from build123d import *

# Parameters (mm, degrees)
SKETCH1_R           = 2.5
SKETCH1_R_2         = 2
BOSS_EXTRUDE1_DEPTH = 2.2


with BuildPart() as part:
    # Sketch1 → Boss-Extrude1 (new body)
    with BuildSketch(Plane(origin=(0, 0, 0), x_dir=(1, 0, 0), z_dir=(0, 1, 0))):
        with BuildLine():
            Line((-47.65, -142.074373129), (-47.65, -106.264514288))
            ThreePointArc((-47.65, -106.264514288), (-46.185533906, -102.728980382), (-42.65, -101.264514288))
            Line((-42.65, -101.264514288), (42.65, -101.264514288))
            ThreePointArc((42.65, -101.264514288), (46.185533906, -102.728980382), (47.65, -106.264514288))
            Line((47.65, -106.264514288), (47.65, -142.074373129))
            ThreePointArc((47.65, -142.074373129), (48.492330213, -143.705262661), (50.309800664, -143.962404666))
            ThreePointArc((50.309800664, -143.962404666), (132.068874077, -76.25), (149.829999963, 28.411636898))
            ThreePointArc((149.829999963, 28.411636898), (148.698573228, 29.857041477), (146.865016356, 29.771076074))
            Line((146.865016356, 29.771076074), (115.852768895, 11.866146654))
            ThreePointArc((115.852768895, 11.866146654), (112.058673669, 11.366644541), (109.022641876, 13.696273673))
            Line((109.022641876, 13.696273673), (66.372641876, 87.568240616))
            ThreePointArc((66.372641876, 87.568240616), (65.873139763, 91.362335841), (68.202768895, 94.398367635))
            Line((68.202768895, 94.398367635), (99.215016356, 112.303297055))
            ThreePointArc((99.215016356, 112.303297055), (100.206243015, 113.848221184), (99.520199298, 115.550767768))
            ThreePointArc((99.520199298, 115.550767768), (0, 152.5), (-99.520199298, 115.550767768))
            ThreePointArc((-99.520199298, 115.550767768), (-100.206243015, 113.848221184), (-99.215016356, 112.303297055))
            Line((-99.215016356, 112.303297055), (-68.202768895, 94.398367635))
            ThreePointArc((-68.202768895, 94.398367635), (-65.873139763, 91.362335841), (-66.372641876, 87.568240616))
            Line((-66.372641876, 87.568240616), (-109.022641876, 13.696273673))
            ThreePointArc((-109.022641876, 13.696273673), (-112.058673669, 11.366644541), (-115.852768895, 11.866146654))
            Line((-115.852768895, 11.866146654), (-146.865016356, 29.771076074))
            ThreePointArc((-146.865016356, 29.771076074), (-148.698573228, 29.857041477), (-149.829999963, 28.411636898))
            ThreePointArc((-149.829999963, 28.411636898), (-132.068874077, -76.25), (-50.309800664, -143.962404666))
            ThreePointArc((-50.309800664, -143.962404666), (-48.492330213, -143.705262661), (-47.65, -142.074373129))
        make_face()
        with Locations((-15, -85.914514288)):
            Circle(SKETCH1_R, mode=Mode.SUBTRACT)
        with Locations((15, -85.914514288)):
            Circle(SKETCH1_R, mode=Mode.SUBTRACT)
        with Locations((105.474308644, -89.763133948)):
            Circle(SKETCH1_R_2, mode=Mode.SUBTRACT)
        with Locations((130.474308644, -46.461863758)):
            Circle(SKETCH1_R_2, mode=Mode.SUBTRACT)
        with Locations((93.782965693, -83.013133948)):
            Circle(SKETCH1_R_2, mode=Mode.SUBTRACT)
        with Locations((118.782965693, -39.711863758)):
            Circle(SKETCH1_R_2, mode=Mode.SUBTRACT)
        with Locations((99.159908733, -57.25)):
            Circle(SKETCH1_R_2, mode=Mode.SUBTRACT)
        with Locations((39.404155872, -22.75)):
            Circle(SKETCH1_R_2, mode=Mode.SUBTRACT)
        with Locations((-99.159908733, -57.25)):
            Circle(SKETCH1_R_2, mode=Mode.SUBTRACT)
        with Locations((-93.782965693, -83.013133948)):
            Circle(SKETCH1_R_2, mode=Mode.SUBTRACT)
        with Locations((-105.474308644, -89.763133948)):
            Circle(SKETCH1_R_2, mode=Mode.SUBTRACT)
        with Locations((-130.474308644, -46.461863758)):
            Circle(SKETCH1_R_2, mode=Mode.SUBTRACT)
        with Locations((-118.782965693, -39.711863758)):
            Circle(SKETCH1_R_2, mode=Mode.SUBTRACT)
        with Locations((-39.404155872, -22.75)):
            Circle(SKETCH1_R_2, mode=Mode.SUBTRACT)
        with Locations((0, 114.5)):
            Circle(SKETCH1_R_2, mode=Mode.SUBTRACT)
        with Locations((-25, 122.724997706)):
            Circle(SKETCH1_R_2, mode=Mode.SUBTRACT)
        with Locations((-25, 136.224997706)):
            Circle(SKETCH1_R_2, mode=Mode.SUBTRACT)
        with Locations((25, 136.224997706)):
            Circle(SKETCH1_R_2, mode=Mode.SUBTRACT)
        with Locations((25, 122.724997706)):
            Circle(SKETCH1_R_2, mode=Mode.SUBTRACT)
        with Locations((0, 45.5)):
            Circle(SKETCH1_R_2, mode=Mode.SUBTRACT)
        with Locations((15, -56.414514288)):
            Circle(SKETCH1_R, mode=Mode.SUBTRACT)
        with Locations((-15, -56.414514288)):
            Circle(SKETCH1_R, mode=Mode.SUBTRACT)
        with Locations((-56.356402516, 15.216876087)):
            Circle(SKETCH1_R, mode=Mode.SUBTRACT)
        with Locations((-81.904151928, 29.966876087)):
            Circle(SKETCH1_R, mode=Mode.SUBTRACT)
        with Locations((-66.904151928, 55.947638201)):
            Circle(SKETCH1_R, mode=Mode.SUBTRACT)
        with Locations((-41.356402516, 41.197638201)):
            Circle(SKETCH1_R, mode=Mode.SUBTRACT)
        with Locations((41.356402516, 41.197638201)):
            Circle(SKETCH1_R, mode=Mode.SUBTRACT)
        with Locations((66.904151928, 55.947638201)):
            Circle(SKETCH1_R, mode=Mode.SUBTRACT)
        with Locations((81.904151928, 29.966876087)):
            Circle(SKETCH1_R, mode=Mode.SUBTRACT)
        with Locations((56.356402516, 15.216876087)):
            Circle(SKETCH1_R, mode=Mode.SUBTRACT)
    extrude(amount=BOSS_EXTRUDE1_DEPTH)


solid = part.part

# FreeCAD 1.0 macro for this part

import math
import FreeCAD as App
import Part
import Sketcher

V = App.Vector
Q = App.Units.Quantity

doc = App.newDocument("Part")
body = doc.addObject("PartDesign::Body", "Body")

# Sketch on XZ plane
sketch1 = doc.addObject("Sketcher::SketchObject", "Sketch")
body.addObject(sketch1)
sketch1.AttachmentSupport = (doc.XZ_Plane, [""])
sketch1.MapMode = "FlatFace"
sketch1.addGeometry([
    Part.LineSegment(V(-47.6, 142.1, 0), V(-47.6, 106.3, 0)),  # 0
    Part.ArcOfCircle(Part.Circle(V(-42.6, 106.3, 0), V(0, 0, 1), 5), math.radians(180), math.radians(270)),  # 1
    Part.LineSegment(V(-42.6, 101.3, 0), V(42.6, 101.3, 0)),  # 2
    Part.ArcOfCircle(Part.Circle(V(42.6, 106.3, 0), V(0, 0, 1), 5), math.radians(-90), math.radians(0)),  # 3
    Part.LineSegment(V(47.6, 106.3, 0), V(47.6, 142.1, 0)),  # 4
    Part.ArcOfCircle(Part.Circle(V(49.6, 142.1, 0), V(0, 0, 1), 2), math.radians(71), math.radians(180)),  # 5
    Part.ArcOfCircle(Part.Circle(V(0, 0, 0), V(0, 0, 1), 152.5), math.radians(-11), math.radians(71)),  # 6
    Part.ArcOfCircle(Part.Circle(V(147.9, -28, 0), V(0, 0, 1), 2), math.radians(-120), math.radians(-11)),  # 7
    Part.LineSegment(V(146.9, -29.8, 0), V(115.9, -11.9, 0)),  # 8
    Part.ArcOfCircle(Part.Circle(V(113.4, -16.2, 0), V(0, 0, 1), 5), math.radians(60), math.radians(150)),  # 9
    Part.LineSegment(V(109, -13.7, 0), V(66.4, -87.6, 0)),  # 10
    Part.ArcOfCircle(Part.Circle(V(70.7, -90.1, 0), V(0, 0, 1), 5), math.radians(150), math.radians(240)),  # 11
    Part.LineSegment(V(68.2, -94.4, 0), V(99.2, -112.3, 0)),  # 12
    Part.ArcOfCircle(Part.Circle(V(98.2, -114, 0), V(0, 0, 1), 2), math.radians(-49), math.radians(60)),  # 13
    Part.ArcOfCircle(Part.Circle(V(0, 0, 0), V(0, 0, 1), 152.5), math.radians(-131), math.radians(-49)),  # 14
    Part.ArcOfCircle(Part.Circle(V(-98.2, -114, 0), V(0, 0, 1), 2), math.radians(120), math.radians(229)),  # 15
    Part.LineSegment(V(-99.2, -112.3, 0), V(-68.2, -94.4, 0)),  # 16
    Part.ArcOfCircle(Part.Circle(V(-70.7, -90.1, 0), V(0, 0, 1), 5), math.radians(-60), math.radians(30)),  # 17
    Part.LineSegment(V(-66.4, -87.6, 0), V(-109, -13.7, 0)),  # 18
    Part.ArcOfCircle(Part.Circle(V(-113.4, -16.2, 0), V(0, 0, 1), 5), math.radians(30), math.radians(120)),  # 19
    Part.LineSegment(V(-115.9, -11.9, 0), V(-146.9, -29.8, 0)),  # 20
    Part.ArcOfCircle(Part.Circle(V(-147.9, -28, 0), V(0, 0, 1), 2), math.radians(-169), math.radians(-60)),  # 21
    Part.ArcOfCircle(Part.Circle(V(0, 0, 0), V(0, 0, 1), 152.5), math.radians(109), math.radians(191)),  # 22
    Part.ArcOfCircle(Part.Circle(V(-49.6, 142.1, 0), V(0, 0, 1), 2), math.radians(0), math.radians(109)),  # 23
    Part.Circle(V(-105.5, 89.8, 0), V(0, 0, 1), 2),  # 24
    Part.Circle(V(-93.8, 83, 0), V(0, 0, 1), 2),  # 25
    Part.Circle(V(-130.5, 46.5, 0), V(0, 0, 1), 2),  # 26
    Part.Circle(V(-118.8, 39.7, 0), V(0, 0, 1), 2),  # 27
    Part.Circle(V(-99.2, 57.2, 0), V(0, 0, 1), 2),  # 28
    Part.Circle(V(-15, 85.9, 0), V(0, 0, 1), 2.5),  # 29
    Part.Circle(V(-15, 56.4, 0), V(0, 0, 1), 2.5),  # 30
    Part.Circle(V(-39.4, 22.8, 0), V(0, 0, 1), 2),  # 31
    Part.Circle(V(-56.4, -15.2, 0), V(0, 0, 1), 2.5),  # 32
    Part.Circle(V(15, 85.9, 0), V(0, 0, 1), 2.5),  # 33
    Part.Circle(V(15, 56.4, 0), V(0, 0, 1), 2.5),  # 34
    Part.Circle(V(93.8, 83, 0), V(0, 0, 1), 2),  # 35
    Part.Circle(V(105.5, 89.8, 0), V(0, 0, 1), 2),  # 36
    Part.Circle(V(99.2, 57.2, 0), V(0, 0, 1), 2),  # 37
    Part.Circle(V(130.5, 46.5, 0), V(0, 0, 1), 2),  # 38
    Part.Circle(V(118.8, 39.7, 0), V(0, 0, 1), 2),  # 39
    Part.Circle(V(39.4, 22.8, 0), V(0, 0, 1), 2),  # 40
    Part.Circle(V(56.4, -15.2, 0), V(0, 0, 1), 2.5),  # 41
    Part.Circle(V(-81.9, -30, 0), V(0, 0, 1), 2.5),  # 42
    Part.Circle(V(-66.9, -55.9, 0), V(0, 0, 1), 2.5),  # 43
    Part.Circle(V(-41.4, -41.2, 0), V(0, 0, 1), 2.5),  # 44
    Part.Circle(V(-25, -122.7, 0), V(0, 0, 1), 2),  # 45
    Part.Circle(V(-25, -136.2, 0), V(0, 0, 1), 2),  # 46
    Part.Circle(V(0, -45.5, 0), V(0, 0, 1), 2),  # 47
    Part.Circle(V(41.4, -41.2, 0), V(0, 0, 1), 2.5),  # 48
    Part.Circle(V(81.9, -30, 0), V(0, 0, 1), 2.5),  # 49
    Part.Circle(V(66.9, -55.9, 0), V(0, 0, 1), 2.5),  # 50
    Part.Circle(V(0, -114.5, 0), V(0, 0, 1), 2),  # 51
    Part.Circle(V(25, -122.7, 0), V(0, 0, 1), 2),  # 52
    Part.Circle(V(25, -136.2, 0), V(0, 0, 1), 2),  # 53
], False)
sketch1.addConstraint([
    Sketcher.Constraint("Tangent", 0, 2, 1, 1),
    Sketcher.Constraint("Tangent", 1, 2, 2, 1),
    Sketcher.Constraint("Tangent", 2, 2, 3, 1),
    Sketcher.Constraint("Tangent", 3, 2, 4, 1),
    Sketcher.Constraint("Tangent", 4, 2, 5, 2),
    Sketcher.Constraint("Tangent", 5, 1, 6, 2),
    Sketcher.Constraint("Tangent", 6, 1, 7, 2),
    Sketcher.Constraint("Tangent", 7, 1, 8, 1),
    Sketcher.Constraint("Tangent", 8, 2, 9, 1),
    Sketcher.Constraint("Tangent", 9, 2, 10, 1),
    Sketcher.Constraint("Tangent", 10, 2, 11, 1),
    Sketcher.Constraint("Tangent", 11, 2, 12, 1),
    Sketcher.Constraint("Tangent", 12, 2, 13, 2),
    Sketcher.Constraint("Tangent", 13, 1, 14, 2),
    Sketcher.Constraint("Tangent", 14, 1, 15, 2),
    Sketcher.Constraint("Tangent", 15, 1, 16, 1),
    Sketcher.Constraint("Tangent", 16, 2, 17, 1),
    Sketcher.Constraint("Tangent", 17, 2, 18, 1),
    Sketcher.Constraint("Tangent", 18, 2, 19, 1),
    Sketcher.Constraint("Tangent", 19, 2, 20, 1),
    Sketcher.Constraint("Tangent", 20, 2, 21, 2),
    Sketcher.Constraint("Tangent", 21, 1, 22, 2),
    Sketcher.Constraint("Tangent", 22, 1, 23, 2),
    Sketcher.Constraint("Tangent", 23, 1, 0, 1),
    Sketcher.Constraint("Vertical", 0),
    Sketcher.Constraint("Horizontal", 2),
    Sketcher.Constraint("Vertical", 4),
    Sketcher.Constraint("Coincident", 6, 3, -1, 1),
    Sketcher.Constraint("Coincident", 14, 3, -1, 1),
    Sketcher.Constraint("Coincident", 22, 3, -1, 1),
    Sketcher.Constraint("Equal", 1, 3),
    Sketcher.Constraint("Equal", 5, 7),
    Sketcher.Constraint("Equal", 3, 9),
    Sketcher.Constraint("Equal", 9, 11),
    Sketcher.Constraint("Equal", 7, 13),
    Sketcher.Constraint("Equal", 6, 14),
    Sketcher.Constraint("Equal", 13, 15),
    Sketcher.Constraint("Equal", 11, 17),
    Sketcher.Constraint("Equal", 17, 19),
    Sketcher.Constraint("Equal", 15, 21),
    Sketcher.Constraint("Equal", 14, 22),
    Sketcher.Constraint("Equal", 21, 23),
    Sketcher.Constraint("Equal", 23, 24),
    Sketcher.Constraint("Equal", 24, 25),
    Sketcher.Constraint("Equal", 25, 26),
    Sketcher.Constraint("Equal", 26, 27),
    Sketcher.Constraint("Equal", 27, 28),
    Sketcher.Constraint("Equal", 29, 30),
    Sketcher.Constraint("Equal", 28, 31),
    Sketcher.Constraint("Equal", 30, 32),
    Sketcher.Constraint("Equal", 32, 33),
    Sketcher.Constraint("Equal", 33, 34),
    Sketcher.Constraint("Equal", 31, 35),
    Sketcher.Constraint("Equal", 35, 36),
    Sketcher.Constraint("Equal", 36, 37),
    Sketcher.Constraint("Equal", 37, 38),
    Sketcher.Constraint("Equal", 38, 39),
    Sketcher.Constraint("Equal", 39, 40),
    Sketcher.Constraint("Equal", 34, 41),
    Sketcher.Constraint("Equal", 41, 42),
    Sketcher.Constraint("Equal", 42, 43),
    Sketcher.Constraint("Equal", 43, 44),
    Sketcher.Constraint("Equal", 40, 45),
    Sketcher.Constraint("Equal", 45, 46),
    Sketcher.Constraint("Equal", 46, 47),
    Sketcher.Constraint("Equal", 44, 48),
    Sketcher.Constraint("Equal", 48, 49),
    Sketcher.Constraint("Equal", 49, 50),
    Sketcher.Constraint("Equal", 47, 51),
    Sketcher.Constraint("Equal", 51, 52),
    Sketcher.Constraint("Equal", 52, 53),
    Sketcher.Constraint("Symmetric", 11, 3, 17, 3, -2),
    Sketcher.Constraint("Symmetric", 9, 3, 19, 3, -2),
    Sketcher.Constraint("Symmetric", 29, 3, 33, 3, -2),
    Sketcher.Constraint("Symmetric", 30, 3, 34, 3, -2),
    Sketcher.Constraint("Symmetric", 25, 3, 35, 3, -2),
    Sketcher.Constraint("Symmetric", 24, 3, 36, 3, -2),
    Sketcher.Constraint("Symmetric", 28, 3, 37, 3, -2),
    Sketcher.Constraint("Symmetric", 26, 3, 38, 3, -2),
    Sketcher.Constraint("Symmetric", 27, 3, 39, 3, -2),
    Sketcher.Constraint("Symmetric", 31, 3, 40, 3, -2),
    Sketcher.Constraint("Symmetric", 32, 3, 41, 3, -2),
    Sketcher.Constraint("Symmetric", 44, 3, 48, 3, -2),
    Sketcher.Constraint("Symmetric", 42, 3, 49, 3, -2),
    Sketcher.Constraint("Symmetric", 43, 3, 50, 3, -2),
    Sketcher.Constraint("Symmetric", 45, 3, 52, 3, -2),
    Sketcher.Constraint("Symmetric", 46, 3, 53, 3, -2),
    Sketcher.Constraint("PointOnObject", 47, 3, -2),
    Sketcher.Constraint("PointOnObject", 51, 3, -2),
    Sketcher.Constraint("Perpendicular", 8, 10),
    Sketcher.Constraint("Perpendicular", 10, 12),
    Sketcher.Constraint("Perpendicular", 16, 18),
    Sketcher.Constraint("Perpendicular", 18, 20),
    Sketcher.Constraint("Horizontal", 5, 3, 23, 3),
    Sketcher.Constraint("Vertical", 29, 3, 30, 3),
    Sketcher.Constraint("Vertical", 45, 3, 46, 3),
    Sketcher.Constraint("Equal", 8, 12),
    Sketcher.Constraint("Diameter", 24, 4.0),
    Sketcher.Constraint("Diameter", 29, 5.0),
    Sketcher.Constraint("Radius", 1, 5.0),
    Sketcher.Constraint("Radius", 6, 152.5),
    Sketcher.Constraint("Angle", 8, Q("150 deg")),
    Sketcher.Constraint("DistanceX", 2, 1, 2, 2, 85.3),
    Sketcher.Constraint("DistanceX", 29, 3, -1, 1, 15.0),
    Sketcher.Constraint("DistanceX", 45, 3, -1, 1, 25.0),
    Sketcher.Constraint("Distance", 10, 85.3),
    Sketcher.Constraint("DistanceY", 47, 3, -1, 1, 45.5),
    Sketcher.Constraint("DistanceY", 51, 3, -1, 1, 114.5),
    Sketcher.Constraint("DistanceY", -1, 1, 28, 3, 57.25),
    Sketcher.Constraint("DistanceY", -1, 1, 31, 3, 22.75),
    Sketcher.Constraint("DistanceY", 0, 2, 0, 1, 35.809859),
    Sketcher.Constraint("Distance", 8, 35.809859),
    Sketcher.Constraint("DistanceX", 24, 3, -1, 1, 105.474309),
    Sketcher.Constraint("DistanceX", 26, 3, -1, 1, 130.474309),
    Sketcher.Constraint("DistanceX", 28, 3, -1, 1, 99.159909),
    Sketcher.Constraint("DistanceX", 42, 3, -1, 1, 81.904152),
    Sketcher.Constraint("DistanceX", 43, 3, -1, 1, 66.904152),
    Sketcher.Constraint("DistanceY", 43, 3, -1, 1, 55.947638),
    Sketcher.Constraint("DistanceY", 44, 3, -1, 1, 41.197638),
    Sketcher.Constraint("DistanceY", -1, 1, 24, 3, 89.763134),
    Sketcher.Constraint("DistanceX", 25, 3, -1, 1, 93.782966),
    Sketcher.Constraint("DistanceY", -1, 1, 25, 3, 83.013134),
    Sketcher.Constraint("DistanceY", -1, 1, 26, 3, 46.461864),
    Sketcher.Constraint("DistanceX", 27, 3, -1, 1, 118.782966),
    Sketcher.Constraint("DistanceY", -1, 1, 27, 3, 39.711864),
    Sketcher.Constraint("DistanceY", -1, 1, 29, 3, 85.914514),
    Sketcher.Constraint("DistanceY", -1, 1, 30, 3, 56.414514),
    Sketcher.Constraint("DistanceX", 31, 3, -1, 1, 39.404156),
    Sketcher.Constraint("DistanceX", 32, 3, -1, 1, 56.356403),
    Sketcher.Constraint("DistanceY", 32, 3, -1, 1, 15.216876),
    Sketcher.Constraint("DistanceY", 42, 3, -1, 1, 29.966876),
    Sketcher.Constraint("DistanceX", 44, 3, -1, 1, 41.356403),
    Sketcher.Constraint("DistanceY", 45, 3, -1, 1, 122.724998),
    Sketcher.Constraint("DistanceY", 46, 3, -1, 1, 136.224998),
])
pad1 = doc.addObject("PartDesign::Pad", "Pad")
body.addObject(pad1)
pad1.Profile = sketch1
pad1.Length = 2.2
pad1.Reversed = True

doc.recompute()
